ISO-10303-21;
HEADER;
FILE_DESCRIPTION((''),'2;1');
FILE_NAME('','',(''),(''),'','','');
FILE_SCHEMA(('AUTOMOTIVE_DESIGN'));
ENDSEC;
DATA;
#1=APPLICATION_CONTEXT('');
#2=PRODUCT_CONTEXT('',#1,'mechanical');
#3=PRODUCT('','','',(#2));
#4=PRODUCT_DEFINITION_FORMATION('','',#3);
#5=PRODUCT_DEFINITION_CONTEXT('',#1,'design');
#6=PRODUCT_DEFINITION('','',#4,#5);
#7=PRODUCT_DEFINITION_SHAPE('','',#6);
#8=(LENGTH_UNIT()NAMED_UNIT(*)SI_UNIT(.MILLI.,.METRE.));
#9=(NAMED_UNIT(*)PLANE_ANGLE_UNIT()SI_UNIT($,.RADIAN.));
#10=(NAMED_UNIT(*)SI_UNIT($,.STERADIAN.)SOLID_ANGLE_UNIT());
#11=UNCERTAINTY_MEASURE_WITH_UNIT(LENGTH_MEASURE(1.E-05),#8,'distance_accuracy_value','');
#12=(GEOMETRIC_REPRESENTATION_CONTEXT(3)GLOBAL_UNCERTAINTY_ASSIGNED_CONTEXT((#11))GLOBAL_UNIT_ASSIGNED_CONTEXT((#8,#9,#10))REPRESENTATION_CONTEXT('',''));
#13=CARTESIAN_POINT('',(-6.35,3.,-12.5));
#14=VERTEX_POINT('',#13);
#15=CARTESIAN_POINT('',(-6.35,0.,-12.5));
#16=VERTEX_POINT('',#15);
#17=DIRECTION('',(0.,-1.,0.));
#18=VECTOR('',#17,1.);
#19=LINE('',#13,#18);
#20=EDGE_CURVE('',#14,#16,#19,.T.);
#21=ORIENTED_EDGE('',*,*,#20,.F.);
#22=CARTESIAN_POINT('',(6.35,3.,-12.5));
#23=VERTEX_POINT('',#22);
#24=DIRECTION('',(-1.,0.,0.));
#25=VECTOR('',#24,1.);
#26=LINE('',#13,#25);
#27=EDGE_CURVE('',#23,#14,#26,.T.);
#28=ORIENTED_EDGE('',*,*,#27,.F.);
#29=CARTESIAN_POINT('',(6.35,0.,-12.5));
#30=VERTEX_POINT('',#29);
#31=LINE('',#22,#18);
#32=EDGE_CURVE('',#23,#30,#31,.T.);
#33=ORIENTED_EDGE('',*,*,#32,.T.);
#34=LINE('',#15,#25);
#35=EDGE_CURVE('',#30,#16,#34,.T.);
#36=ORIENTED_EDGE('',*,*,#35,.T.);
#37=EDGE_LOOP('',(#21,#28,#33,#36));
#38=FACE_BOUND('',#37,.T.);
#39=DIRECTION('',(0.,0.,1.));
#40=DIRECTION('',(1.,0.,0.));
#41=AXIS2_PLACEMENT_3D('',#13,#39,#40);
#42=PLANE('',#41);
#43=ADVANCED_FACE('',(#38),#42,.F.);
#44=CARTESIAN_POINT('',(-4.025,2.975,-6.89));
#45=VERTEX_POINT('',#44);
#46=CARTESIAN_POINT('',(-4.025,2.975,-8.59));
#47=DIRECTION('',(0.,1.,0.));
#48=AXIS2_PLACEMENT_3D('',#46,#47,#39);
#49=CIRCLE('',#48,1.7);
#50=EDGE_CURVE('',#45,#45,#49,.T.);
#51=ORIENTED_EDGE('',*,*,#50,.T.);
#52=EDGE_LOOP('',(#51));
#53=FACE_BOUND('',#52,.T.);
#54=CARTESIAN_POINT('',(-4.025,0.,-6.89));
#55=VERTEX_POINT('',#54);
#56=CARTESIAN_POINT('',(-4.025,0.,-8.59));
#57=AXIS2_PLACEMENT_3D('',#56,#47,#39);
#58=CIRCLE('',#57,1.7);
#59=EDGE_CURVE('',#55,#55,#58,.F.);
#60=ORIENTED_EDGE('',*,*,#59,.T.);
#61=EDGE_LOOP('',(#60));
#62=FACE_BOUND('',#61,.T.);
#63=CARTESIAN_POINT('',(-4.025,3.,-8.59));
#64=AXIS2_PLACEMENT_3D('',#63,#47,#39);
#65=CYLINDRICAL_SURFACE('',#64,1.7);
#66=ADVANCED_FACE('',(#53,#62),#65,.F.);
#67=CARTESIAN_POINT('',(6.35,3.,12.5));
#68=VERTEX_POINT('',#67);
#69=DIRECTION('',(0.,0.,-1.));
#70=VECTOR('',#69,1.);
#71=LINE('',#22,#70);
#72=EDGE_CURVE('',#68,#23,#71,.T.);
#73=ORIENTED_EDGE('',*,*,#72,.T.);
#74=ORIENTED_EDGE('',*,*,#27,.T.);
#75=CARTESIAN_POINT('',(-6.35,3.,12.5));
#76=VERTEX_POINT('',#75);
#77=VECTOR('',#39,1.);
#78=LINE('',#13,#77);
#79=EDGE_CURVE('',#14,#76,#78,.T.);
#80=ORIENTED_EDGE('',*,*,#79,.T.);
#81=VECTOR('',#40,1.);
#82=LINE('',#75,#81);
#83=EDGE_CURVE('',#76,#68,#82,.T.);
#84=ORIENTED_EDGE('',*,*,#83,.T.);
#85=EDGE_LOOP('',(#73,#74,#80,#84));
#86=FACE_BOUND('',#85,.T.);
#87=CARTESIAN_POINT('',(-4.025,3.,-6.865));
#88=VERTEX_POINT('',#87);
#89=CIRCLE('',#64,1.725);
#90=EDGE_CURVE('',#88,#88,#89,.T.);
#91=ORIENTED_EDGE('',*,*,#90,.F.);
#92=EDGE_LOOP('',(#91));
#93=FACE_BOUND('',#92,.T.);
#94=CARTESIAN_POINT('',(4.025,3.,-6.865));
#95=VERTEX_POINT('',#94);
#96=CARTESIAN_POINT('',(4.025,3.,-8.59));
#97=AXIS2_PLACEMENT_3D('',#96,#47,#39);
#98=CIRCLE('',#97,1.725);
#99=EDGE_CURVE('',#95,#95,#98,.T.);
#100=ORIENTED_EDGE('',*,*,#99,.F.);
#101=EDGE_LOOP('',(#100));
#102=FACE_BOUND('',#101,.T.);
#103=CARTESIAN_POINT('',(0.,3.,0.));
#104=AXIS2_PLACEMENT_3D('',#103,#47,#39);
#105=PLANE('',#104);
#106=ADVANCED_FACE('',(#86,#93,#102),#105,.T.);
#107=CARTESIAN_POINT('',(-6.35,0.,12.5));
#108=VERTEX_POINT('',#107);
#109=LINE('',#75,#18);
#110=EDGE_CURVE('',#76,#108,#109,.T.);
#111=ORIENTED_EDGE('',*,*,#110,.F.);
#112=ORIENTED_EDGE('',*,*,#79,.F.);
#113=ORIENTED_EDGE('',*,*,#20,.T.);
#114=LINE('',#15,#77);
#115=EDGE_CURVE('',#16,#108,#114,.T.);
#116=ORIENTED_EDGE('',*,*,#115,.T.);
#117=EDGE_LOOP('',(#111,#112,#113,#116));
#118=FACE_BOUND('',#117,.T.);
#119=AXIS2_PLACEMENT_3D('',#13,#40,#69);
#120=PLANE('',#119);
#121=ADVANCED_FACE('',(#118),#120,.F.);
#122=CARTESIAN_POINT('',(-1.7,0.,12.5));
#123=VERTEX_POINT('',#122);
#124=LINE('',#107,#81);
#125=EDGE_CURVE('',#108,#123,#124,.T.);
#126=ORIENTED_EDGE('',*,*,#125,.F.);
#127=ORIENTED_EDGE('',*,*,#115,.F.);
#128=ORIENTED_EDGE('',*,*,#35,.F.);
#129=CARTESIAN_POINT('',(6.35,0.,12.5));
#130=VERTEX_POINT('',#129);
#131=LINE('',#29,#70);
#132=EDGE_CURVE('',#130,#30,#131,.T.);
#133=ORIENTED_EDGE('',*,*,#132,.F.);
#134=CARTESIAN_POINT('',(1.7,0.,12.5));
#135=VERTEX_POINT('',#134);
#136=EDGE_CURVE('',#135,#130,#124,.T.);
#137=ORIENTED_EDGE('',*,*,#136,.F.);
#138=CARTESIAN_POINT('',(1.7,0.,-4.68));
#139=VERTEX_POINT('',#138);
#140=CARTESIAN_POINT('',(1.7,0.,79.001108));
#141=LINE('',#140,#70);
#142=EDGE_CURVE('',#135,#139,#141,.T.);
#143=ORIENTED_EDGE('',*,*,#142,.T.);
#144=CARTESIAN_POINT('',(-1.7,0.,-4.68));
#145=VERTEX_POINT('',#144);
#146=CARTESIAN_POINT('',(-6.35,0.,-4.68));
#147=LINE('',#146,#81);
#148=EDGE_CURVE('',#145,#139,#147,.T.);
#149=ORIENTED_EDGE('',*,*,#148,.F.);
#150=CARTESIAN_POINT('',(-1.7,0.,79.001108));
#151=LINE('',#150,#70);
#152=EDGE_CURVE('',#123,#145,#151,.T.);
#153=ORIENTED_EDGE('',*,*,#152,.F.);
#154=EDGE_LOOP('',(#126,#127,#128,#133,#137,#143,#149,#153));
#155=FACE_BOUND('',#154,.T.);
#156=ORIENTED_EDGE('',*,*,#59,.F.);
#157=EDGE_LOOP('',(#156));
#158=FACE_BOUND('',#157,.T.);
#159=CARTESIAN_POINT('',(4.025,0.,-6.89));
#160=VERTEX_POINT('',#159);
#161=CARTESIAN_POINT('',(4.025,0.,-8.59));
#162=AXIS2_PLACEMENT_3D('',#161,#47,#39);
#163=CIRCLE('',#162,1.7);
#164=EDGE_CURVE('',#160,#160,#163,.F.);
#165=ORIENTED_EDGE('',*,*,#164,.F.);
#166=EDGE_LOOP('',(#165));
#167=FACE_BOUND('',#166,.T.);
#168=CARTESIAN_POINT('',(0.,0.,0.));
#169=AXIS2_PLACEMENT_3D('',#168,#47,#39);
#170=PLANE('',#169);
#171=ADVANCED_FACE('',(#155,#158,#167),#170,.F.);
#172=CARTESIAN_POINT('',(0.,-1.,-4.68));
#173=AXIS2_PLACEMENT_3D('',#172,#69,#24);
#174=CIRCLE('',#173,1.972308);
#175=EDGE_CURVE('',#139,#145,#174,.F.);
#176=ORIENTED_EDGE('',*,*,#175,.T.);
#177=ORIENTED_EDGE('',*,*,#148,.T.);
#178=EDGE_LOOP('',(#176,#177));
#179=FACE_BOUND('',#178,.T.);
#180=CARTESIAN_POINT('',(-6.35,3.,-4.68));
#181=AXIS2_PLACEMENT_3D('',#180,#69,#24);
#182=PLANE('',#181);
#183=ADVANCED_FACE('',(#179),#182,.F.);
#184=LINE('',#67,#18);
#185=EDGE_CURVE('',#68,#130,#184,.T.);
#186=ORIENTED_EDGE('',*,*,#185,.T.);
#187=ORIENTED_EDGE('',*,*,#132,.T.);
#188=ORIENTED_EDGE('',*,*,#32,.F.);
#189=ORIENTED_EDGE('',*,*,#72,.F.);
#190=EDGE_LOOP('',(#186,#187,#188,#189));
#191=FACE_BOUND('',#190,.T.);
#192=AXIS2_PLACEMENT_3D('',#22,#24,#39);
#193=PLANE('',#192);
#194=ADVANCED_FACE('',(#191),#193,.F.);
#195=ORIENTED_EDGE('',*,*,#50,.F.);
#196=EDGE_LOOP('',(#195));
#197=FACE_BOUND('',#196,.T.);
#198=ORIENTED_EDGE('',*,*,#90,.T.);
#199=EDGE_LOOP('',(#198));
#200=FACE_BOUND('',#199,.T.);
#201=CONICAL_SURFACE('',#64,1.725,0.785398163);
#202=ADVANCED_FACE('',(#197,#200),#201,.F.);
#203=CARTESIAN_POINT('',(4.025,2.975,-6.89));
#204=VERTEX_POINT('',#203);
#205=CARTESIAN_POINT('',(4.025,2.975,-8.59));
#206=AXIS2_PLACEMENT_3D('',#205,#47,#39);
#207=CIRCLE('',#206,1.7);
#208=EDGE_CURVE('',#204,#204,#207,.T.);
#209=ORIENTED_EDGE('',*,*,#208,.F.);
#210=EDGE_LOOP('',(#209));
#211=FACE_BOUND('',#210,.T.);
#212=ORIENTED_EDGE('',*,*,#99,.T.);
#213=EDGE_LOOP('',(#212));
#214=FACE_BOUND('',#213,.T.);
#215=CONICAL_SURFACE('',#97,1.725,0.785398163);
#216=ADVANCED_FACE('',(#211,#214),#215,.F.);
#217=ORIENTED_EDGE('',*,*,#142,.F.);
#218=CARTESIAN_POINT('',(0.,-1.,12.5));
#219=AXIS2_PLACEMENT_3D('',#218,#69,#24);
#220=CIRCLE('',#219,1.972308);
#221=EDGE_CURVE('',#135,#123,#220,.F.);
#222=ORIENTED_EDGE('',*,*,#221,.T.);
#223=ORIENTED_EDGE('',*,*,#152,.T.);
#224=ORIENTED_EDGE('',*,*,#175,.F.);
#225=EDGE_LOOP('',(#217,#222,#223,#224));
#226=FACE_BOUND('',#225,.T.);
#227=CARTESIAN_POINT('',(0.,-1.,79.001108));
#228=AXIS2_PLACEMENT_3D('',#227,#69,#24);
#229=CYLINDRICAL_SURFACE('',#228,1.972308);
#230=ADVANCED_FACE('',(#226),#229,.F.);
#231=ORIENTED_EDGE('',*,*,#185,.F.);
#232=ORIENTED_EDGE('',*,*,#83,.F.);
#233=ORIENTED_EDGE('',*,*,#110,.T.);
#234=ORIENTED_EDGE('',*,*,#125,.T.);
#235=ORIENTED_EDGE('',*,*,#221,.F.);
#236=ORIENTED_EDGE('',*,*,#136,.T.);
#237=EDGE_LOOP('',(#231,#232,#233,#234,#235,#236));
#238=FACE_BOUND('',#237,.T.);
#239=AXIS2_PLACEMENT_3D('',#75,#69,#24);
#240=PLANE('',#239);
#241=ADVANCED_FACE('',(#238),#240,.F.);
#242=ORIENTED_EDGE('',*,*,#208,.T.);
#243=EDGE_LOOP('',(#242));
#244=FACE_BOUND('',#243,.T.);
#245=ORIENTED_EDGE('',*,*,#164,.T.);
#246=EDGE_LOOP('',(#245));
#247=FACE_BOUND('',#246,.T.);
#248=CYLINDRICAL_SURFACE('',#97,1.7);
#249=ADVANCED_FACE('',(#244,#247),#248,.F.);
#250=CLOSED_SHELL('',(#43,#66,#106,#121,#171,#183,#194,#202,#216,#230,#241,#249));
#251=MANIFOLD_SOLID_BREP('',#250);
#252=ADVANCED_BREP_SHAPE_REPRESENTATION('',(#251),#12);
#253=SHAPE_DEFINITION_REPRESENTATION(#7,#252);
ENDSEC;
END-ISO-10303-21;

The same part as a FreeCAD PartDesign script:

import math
import FreeCAD as App
import Part
import Sketcher
Q = App.Units.Quantity

doc = App.newDocument("Part")
body = doc.addObject("PartDesign::Body", "Body")

sketch1 = body.newObject("Sketcher::SketchObject", "Sketch")
sketch1.AttachmentSupport = (doc.getObject("XZ_Plane"), [""])
sketch1.MapMode = "FlatFace"
sketch1.addGeometry([
    Part.LineSegment(App.Vector(-6, -12, 0), App.Vector(-6, 12, 0)),
    Part.LineSegment(App.Vector(-6, 12, 0), App.Vector(6, 12, 0)),
    Part.LineSegment(App.Vector(6, 12, 0), App.Vector(6, -12, 0)),
    Part.LineSegment(App.Vector(6, -12, 0), App.Vector(-6, -12, 0)),
], False)
sketch1.addConstraint([
    Sketcher.Constraint("Coincident", 0, 2, 1, 1),
    Sketcher.Constraint("Coincident", 1, 2, 2, 1),
    Sketcher.Constraint("Coincident", 2, 2, 3, 1),
    Sketcher.Constraint("Coincident", 3, 2, 0, 1),
    Sketcher.Constraint("Vertical", 0),
    Sketcher.Constraint("Horizontal", 1),
    Sketcher.Constraint("Vertical", 2),
    Sketcher.Constraint("Horizontal", 3),
    Sketcher.Constraint("Symmetric", 0, 2, 2, 2, -1, 1),
    Sketcher.Constraint("DistanceY", 0, 1, 0, 2, Q("25 mm")),
    Sketcher.Constraint("DistanceX", 1, 1, 1, 2, Q("12.7 mm")),
])
pad1 = body.newObject("PartDesign::Pad", "Pad")
pad1.Profile = sketch1
pad1.Length = 3
pad1.Reversed = True

sketch2 = body.newObject("Sketcher::SketchObject", "Sketch001")
sketch2.AttachmentSupport = (doc.getObject("XY_Plane"), [""])
sketch2.MapMode = "FlatFace"
sketch2.AttachmentOffset = App.Placement(App.Vector(0, 0, 12.5), App.Rotation())
sketch2.addGeometry([
    Part.LineSegment(App.Vector(-1.7, 0, 0), App.Vector(-15.5, -23.4, 0)),
    Part.LineSegment(App.Vector(-15.5, -23.4, 0), App.Vector(-15.5, -77.8, 0)),
    Part.LineSegment(App.Vector(-15.5, -77.8, 0), App.Vector(15.5, -77.8, 0)),
    Part.LineSegment(App.Vector(15.5, -77.8, 0), App.Vector(15.5, -23.4, 0)),
    Part.LineSegment(App.Vector(15.5, -23.4, 0), App.Vector(1.7, 0, 0)),
    Part.ArcOfCircle(Part.Circle(App.Vector(0, -1, 0), App.Vector(0, 0, 1), 2), math.radians(30), math.radians(150)),
], False)
sketch2.addConstraint([
    Sketcher.Constraint("Coincident", 0, 2, 1, 1),
    Sketcher.Constraint("Coincident", 1, 2, 2, 1),
    Sketcher.Constraint("Coincident", 2, 2, 3, 1),
    Sketcher.Constraint("Coincident", 3, 2, 4, 1),
    Sketcher.Constraint("Tangent", 4, 2, 5, 1),
    Sketcher.Constraint("Tangent", 5, 2, 0, 1),
    Sketcher.Constraint("Vertical", 1),
    Sketcher.Constraint("Horizontal", 2),
    Sketcher.Constraint("Vertical", 3),
    Sketcher.Constraint("Symmetric", 4, 2, 5, 2, -1, 1),
    Sketcher.Constraint("Symmetric", 0, 2, 3, 2, -2),
    Sketcher.Constraint("DistanceY", 5, 3, -1, 1, Q("1 mm")),
    Sketcher.Constraint("DistanceX", -1, 1, 4, 2, Q("1.7 mm")),
    Sketcher.Constraint("DistanceX", 2, 1, 2, 2, Q("30.963314 mm")),
    Sketcher.Constraint("DistanceY", 1, 2, 1, 1, Q("54.363353 mm")),
])
pocket1 = body.newObject("PartDesign::Pocket", "Pocket")
pocket1.Profile = sketch2
pocket1.Type = "TwoLengths"
pocket1.Length = 26.96772
pocket1.Length2 = 17.18
pocket1.Reversed = True

sketch3 = body.newObject("Sketcher::SketchObject", "Sketch002")
sketch3.AttachmentSupport = (doc.getObject("XZ_Plane"), [""])
sketch3.MapMode = "FlatFace"
sketch3.AttachmentOffset = App.Placement(App.Vector(0, 0, -3), App.Rotation())
sketch3.addGeometry([
    Part.Circle(App.Vector(-4, -8.6, 0), App.Vector(0, 0, 1), 1.7),
    Part.Circle(App.Vector(4, -8.6, 0), App.Vector(0, 0, 1), 1.7),
], False)
sketch3.addConstraint([
    Sketcher.Constraint("Equal", 0, 1),
    Sketcher.Constraint("Symmetric", 0, 3, 1, 3, -2),
    Sketcher.Constraint("Diameter", 0, Q("3.4 mm")),
    Sketcher.Constraint("DistanceY", 0, 3, -1, 1, Q("8.59 mm")),
    Sketcher.Constraint("DistanceX", 0, 3, 1, 3, Q("8.05 mm")),
])
doc.recompute()
hole = body.newObject("PartDesign::Hole", "Hole")
hole.Profile = sketch3
hole.ThreadType = "None"
hole.Diameter = 3.4
hole.DepthType = "Dimension"
hole.Depth = 3
hole.DrillPoint = "Angled"
hole.DrillPointAngle = 118
hole.HoleCutType = "Countersink"
hole.HoleCutDiameter = 3.45
hole.HoleCutCountersinkAngle = 90
hole.Reversed = True

doc.recompute()
